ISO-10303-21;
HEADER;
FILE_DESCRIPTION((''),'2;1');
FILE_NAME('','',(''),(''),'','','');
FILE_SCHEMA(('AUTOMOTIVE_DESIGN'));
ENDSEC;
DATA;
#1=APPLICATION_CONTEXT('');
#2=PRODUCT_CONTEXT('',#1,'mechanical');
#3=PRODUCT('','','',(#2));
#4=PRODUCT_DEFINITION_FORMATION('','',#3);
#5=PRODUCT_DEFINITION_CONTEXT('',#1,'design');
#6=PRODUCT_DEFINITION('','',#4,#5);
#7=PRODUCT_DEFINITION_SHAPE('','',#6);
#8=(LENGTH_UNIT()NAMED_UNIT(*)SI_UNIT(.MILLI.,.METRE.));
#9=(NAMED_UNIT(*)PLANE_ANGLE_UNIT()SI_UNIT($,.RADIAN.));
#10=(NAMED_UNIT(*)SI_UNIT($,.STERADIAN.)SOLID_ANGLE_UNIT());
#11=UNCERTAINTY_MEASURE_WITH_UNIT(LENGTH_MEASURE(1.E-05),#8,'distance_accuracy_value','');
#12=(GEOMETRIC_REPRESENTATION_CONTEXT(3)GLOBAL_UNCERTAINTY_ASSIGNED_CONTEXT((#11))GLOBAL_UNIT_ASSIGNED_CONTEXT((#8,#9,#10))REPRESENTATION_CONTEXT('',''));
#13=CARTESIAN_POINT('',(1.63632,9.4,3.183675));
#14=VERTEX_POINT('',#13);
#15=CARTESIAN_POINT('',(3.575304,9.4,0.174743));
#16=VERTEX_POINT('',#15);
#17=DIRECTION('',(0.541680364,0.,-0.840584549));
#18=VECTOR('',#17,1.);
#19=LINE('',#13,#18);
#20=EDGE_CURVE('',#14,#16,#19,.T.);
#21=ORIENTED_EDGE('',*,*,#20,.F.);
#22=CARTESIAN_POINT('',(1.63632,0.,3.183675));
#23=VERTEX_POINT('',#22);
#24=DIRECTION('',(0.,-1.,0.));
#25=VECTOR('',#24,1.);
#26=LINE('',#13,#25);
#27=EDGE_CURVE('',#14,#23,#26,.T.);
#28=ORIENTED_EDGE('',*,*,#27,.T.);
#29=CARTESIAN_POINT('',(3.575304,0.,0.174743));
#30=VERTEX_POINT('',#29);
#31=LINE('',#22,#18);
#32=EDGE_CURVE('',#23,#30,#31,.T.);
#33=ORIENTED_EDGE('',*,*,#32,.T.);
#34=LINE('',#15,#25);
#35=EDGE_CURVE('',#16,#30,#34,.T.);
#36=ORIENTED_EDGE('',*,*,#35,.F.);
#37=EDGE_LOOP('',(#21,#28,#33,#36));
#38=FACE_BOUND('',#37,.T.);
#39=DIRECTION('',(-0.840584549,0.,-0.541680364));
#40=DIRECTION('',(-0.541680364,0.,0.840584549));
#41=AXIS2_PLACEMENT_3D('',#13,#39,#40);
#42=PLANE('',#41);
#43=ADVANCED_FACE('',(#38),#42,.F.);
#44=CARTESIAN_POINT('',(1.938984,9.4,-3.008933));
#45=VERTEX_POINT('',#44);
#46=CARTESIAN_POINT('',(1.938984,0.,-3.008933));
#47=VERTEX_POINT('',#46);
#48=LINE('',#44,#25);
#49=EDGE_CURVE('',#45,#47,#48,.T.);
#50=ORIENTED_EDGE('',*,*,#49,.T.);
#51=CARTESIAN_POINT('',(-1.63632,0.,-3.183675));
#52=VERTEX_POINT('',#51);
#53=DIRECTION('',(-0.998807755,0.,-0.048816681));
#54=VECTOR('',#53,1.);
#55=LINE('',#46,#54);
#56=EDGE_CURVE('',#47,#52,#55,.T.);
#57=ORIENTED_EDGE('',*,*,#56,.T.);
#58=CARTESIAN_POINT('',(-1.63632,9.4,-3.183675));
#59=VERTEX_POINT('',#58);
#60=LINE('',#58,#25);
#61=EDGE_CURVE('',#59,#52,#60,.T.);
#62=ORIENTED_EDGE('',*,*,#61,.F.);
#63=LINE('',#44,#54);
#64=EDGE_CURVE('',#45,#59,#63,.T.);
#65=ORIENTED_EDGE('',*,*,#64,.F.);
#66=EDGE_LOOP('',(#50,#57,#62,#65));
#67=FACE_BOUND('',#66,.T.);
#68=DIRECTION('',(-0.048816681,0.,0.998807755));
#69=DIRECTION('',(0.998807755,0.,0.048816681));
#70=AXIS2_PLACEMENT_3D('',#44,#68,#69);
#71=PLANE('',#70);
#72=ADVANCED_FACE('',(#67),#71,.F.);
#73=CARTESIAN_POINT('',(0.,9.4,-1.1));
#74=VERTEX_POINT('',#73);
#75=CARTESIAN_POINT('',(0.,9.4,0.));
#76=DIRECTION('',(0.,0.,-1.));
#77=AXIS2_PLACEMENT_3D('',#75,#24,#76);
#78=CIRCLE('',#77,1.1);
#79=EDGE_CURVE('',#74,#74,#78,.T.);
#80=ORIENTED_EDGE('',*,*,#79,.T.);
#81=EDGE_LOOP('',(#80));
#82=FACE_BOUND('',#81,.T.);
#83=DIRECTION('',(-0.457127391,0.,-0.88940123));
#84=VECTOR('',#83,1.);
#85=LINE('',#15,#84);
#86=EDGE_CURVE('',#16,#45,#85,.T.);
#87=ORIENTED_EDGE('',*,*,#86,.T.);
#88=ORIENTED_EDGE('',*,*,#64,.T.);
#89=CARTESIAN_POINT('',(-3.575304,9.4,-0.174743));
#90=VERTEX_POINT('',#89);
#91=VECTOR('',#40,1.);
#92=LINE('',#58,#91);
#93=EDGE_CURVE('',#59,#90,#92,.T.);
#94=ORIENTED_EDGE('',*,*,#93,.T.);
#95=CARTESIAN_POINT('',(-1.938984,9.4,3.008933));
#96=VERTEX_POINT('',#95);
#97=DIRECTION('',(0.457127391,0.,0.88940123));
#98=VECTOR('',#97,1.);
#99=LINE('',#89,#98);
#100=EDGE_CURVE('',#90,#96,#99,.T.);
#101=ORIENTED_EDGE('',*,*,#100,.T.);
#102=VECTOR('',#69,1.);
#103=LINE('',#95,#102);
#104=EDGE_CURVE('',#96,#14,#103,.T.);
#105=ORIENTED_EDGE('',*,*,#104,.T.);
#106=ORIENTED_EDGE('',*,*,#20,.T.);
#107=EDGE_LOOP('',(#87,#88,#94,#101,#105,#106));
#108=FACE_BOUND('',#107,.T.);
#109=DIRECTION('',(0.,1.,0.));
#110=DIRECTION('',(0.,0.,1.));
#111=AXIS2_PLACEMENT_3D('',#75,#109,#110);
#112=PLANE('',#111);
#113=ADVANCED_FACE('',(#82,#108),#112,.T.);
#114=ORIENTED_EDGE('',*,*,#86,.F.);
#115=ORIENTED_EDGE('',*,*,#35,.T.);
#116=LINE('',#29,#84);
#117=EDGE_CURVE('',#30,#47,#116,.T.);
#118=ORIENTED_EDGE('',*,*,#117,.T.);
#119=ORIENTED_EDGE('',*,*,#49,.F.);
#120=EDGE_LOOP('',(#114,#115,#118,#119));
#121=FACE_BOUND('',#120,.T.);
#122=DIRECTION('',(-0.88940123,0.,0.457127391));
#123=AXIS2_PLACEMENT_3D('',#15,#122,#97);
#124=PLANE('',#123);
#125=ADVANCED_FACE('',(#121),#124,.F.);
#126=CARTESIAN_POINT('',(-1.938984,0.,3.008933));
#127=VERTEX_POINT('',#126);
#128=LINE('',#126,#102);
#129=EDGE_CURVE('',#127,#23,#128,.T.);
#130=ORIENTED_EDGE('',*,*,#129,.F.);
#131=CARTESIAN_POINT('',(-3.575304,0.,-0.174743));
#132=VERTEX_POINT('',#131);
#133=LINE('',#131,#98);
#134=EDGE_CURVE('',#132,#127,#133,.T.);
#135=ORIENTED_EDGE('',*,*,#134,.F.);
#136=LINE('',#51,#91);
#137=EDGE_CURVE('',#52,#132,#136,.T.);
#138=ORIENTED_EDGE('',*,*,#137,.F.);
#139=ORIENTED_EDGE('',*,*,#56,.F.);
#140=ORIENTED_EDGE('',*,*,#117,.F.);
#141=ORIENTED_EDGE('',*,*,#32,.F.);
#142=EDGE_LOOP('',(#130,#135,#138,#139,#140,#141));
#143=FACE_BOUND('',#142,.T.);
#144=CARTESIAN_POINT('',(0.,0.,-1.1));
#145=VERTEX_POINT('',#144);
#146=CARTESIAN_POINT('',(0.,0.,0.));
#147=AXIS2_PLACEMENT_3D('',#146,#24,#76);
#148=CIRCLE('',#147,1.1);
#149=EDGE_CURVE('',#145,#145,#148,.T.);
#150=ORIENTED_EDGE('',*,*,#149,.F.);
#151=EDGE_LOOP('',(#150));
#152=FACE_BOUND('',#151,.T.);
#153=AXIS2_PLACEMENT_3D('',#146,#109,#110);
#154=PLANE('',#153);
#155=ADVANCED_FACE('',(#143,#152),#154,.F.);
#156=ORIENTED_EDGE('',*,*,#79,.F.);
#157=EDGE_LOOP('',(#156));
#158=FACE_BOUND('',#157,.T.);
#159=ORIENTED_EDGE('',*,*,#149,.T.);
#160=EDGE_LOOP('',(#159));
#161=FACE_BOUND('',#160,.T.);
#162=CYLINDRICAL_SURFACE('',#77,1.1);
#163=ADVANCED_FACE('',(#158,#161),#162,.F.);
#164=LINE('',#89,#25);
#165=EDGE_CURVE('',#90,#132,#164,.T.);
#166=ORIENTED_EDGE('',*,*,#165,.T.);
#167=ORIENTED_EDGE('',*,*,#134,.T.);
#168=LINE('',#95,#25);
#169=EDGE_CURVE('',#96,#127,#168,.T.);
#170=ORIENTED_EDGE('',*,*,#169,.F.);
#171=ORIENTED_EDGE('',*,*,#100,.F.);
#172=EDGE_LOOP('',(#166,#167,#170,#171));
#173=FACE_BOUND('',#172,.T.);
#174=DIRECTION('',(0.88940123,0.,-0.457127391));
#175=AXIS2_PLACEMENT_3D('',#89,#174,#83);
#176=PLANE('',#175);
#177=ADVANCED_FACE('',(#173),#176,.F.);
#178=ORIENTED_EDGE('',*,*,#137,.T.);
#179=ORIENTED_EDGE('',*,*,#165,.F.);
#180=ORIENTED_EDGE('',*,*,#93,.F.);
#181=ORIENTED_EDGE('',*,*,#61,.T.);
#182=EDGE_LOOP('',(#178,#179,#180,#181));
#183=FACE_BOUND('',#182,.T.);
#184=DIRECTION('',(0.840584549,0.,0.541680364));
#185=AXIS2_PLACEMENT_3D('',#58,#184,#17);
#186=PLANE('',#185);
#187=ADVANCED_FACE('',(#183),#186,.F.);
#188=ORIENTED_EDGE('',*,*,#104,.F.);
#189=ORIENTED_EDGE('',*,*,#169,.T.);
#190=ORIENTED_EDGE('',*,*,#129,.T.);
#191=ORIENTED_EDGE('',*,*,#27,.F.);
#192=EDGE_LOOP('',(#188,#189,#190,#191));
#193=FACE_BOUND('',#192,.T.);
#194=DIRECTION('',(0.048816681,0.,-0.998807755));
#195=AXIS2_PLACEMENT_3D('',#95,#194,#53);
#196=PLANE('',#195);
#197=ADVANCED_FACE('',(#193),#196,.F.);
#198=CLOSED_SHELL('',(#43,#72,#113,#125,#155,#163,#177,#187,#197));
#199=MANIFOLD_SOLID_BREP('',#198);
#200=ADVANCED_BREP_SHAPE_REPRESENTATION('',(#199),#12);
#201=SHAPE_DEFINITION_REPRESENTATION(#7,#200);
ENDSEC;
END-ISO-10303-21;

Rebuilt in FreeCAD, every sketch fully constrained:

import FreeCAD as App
import Part
import Sketcher
Q = App.Units.Quantity


def add_polygon(sketch, points):
    """Adds a closed chain of lines whose ends are joined by coincident constraints."""
    first, n = sketch.GeometryCount, len(points)
    for a, b in zip(points, points[1:] + points[:1]):
        sketch.addGeometry(Part.LineSegment(App.Vector(*a, 0), App.Vector(*b, 0)), False)
    for i in range(n):
        sketch.addConstraint(Sketcher.Constraint("Coincident", first + i, 2, first + (i + 1) % n, 1))

doc = App.newDocument("Part")
body = doc.addObject("PartDesign::Body", "Body")

sketch1 = body.newObject("Sketcher::SketchObject", "Sketch")
sketch1.AttachmentSupport = (doc.getObject("XZ_Plane"), [""])
sketch1.MapMode = "FlatFace"
add_polygon(sketch1, [(-1.6, -3.2), (-3.6, -0.2), (-1.9, 3), (1.6, 3.2), (3.6, 0.2), (1.9, -3)])
sketch1.addConstraint([
    Sketcher.Constraint("Symmetric", 0, 2, 3, 2, -1, 1),
    Sketcher.Constraint("Symmetric", 1, 2, 4, 2, -1, 1),
    Sketcher.Constraint("Symmetric", 2, 2, 5, 2, -1, 1),
    Sketcher.Constraint("Equal", 0, 1),
    Sketcher.Constraint("Equal", 1, 2),
    Sketcher.Constraint("Distance", 0, Q("3.579572 mm")),
    Sketcher.Constraint("DistanceX", -1, 1, 2, 2, Q("1.63632 mm")),
    Sketcher.Constraint("DistanceX", 0, 2, 1, 2, Q("1.63632 mm")),
    Sketcher.Constraint("DistanceY", 0, 2, 2, 2, Q("3.358418 mm")),
])
pad1 = body.newObject("PartDesign::Pad", "Pad")
pad1.Profile = sketch1
pad1.Length = 9.4
pad1.Reversed = True

sketch2 = body.newObject("Sketcher::SketchObject", "Sketch001")
sketch2.AttachmentSupport = (doc.getObject("XZ_Plane"), [""])
sketch2.MapMode = "FlatFace"
sketch2.addGeometry(Part.Circle(App.Vector(0, 0, 0), App.Vector(0, 0, 1), 1.1), False)
sketch2.addConstraint([
    Sketcher.Constraint("Coincident", 0, 3, -1, 1),
    Sketcher.Constraint("Diameter", 0, Q("2.2 mm")),
])
pocket1 = body.newObject("PartDesign::Pocket", "Pocket")
pocket1.Profile = sketch2
pocket1.Type = "ThroughAll"

doc.recompute()
